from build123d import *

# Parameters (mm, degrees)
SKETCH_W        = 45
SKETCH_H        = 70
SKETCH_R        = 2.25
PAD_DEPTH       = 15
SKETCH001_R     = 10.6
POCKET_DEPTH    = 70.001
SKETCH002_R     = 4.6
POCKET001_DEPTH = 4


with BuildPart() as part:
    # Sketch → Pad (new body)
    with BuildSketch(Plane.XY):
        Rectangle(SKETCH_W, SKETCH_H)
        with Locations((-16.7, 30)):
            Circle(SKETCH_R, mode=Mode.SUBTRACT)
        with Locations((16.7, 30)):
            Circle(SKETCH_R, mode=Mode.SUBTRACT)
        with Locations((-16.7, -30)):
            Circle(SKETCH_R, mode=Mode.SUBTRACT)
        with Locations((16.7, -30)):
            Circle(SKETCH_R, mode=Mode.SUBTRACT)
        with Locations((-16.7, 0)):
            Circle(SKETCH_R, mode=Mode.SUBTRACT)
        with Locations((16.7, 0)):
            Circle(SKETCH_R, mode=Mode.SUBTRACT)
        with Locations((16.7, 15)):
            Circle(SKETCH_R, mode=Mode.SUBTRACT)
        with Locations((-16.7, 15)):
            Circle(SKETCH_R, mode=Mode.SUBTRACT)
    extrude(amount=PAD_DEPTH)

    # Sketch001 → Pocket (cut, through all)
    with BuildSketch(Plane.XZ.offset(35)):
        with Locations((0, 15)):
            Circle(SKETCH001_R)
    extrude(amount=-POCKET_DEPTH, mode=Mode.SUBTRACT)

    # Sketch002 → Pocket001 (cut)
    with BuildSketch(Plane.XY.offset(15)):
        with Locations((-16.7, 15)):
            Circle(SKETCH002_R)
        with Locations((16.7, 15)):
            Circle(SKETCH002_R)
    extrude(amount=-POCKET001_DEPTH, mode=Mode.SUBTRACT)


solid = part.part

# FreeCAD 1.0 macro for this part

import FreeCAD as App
import Part
import Sketcher
from FreeCAD import Vector
Q = App.Units.Quantity


def add_polygon(sketch, points):
    """Adds a closed chain of lines whose ends are joined by coincident constraints."""
    first, n = sketch.GeometryCount, len(points)
    for a, b in zip(points, points[1:] + points[:1]):
        sketch.addGeometry(Part.LineSegment(App.Vector(*a, 0), App.Vector(*b, 0)), False)
    for i in range(n):
        sketch.addConstraint(Sketcher.Constraint("Coincident", first + i, 2, first + (i + 1) % n, 1))

doc = App.newDocument("Part")
body = doc.addObject("PartDesign::Body", "Body")

# Sketch on XY plane
sketch1 = doc.addObject("Sketcher::SketchObject", "Sketch")
body.addObject(sketch1)
sketch1.AttachmentSupport = (doc.XY_Plane, [""])
sketch1.MapMode = "FlatFace"
add_polygon(sketch1, [(-22.5, 35), (-22.5, -35), (22.5, -35), (22.5, 35)])  # lines 0-3
sketch1.addGeometry(Part.Circle(Vector(-16.7, -30, 0), Vector(0, 0, 1), 2.25), False)  # 4
sketch1.addGeometry(Part.Circle(Vector(16.7, -30, 0), Vector(0, 0, 1), 2.25), False)  # 5
sketch1.addGeometry(Part.Circle(Vector(-16.7, 0, 0), Vector(0, 0, 1), 2.25), False)  # 6
sketch1.addGeometry(Part.Circle(Vector(-16.7, 15, 0), Vector(0, 0, 1), 2.25), False)  # 7
sketch1.addGeometry(Part.Circle(Vector(-16.7, 30, 0), Vector(0, 0, 1), 2.25), False)  # 8
sketch1.addGeometry(Part.Circle(Vector(16.7, 0, 0), Vector(0, 0, 1), 2.25), False)  # 9
sketch1.addGeometry(Part.Circle(Vector(16.7, 15, 0), Vector(0, 0, 1), 2.25), False)  # 10
sketch1.addGeometry(Part.Circle(Vector(16.7, 30, 0), Vector(0, 0, 1), 2.25), False)  # 11
sketch1.addConstraint([
    Sketcher.Constraint("Vertical", 0),
    Sketcher.Constraint("Horizontal", 1),
    Sketcher.Constraint("Vertical", 2),
    Sketcher.Constraint("Horizontal", 3),
    Sketcher.Constraint("Equal", 4, 5),
    Sketcher.Constraint("Equal", 5, 6),
    Sketcher.Constraint("Equal", 6, 7),
    Sketcher.Constraint("Equal", 7, 8),
    Sketcher.Constraint("Equal", 8, 9),
    Sketcher.Constraint("Equal", 9, 10),
    Sketcher.Constraint("Equal", 10, 11),
    Sketcher.Constraint("Symmetric", 5, 3, 8, 3, -1, 1),
    Sketcher.Constraint("Symmetric", 6, 3, 9, 3, -1, 1),
    Sketcher.Constraint("Symmetric", 4, 3, 11, 3, -1, 1),
    Sketcher.Constraint("Symmetric", 0, 2, 2, 2, -1, 1),
    Sketcher.Constraint("Symmetric", 4, 3, 5, 3, -2),
    Sketcher.Constraint("Symmetric", 7, 3, 10, 3, -2),
    Sketcher.Constraint("PointOnObject", 6, 3, -1),
    Sketcher.Constraint("Vertical", 4, 3, 6, 3),
    Sketcher.Constraint("Vertical", 6, 3, 7, 3),
    Sketcher.Constraint("Diameter", 4, Q("4.5 mm")),
    Sketcher.Constraint("DistanceX", 1, 1, 1, 2, Q("45 mm")),
    Sketcher.Constraint("DistanceY", 0, 2, 0, 1, Q("70 mm")),
    Sketcher.Constraint("DistanceY", 4, 3, -1, 1, Q("30 mm")),
    Sketcher.Constraint("DistanceY", -1, 1, 7, 3, Q("15 mm")),
    Sketcher.Constraint("DistanceX", 4, 3, -1, 1, Q("16.7 mm")),
])
pad1 = doc.addObject("PartDesign::Pad", "Pad")
body.addObject(pad1)
pad1.Profile = sketch1
pad1.Length = 15

# Sketch on XZ plane
sketch2 = doc.addObject("Sketcher::SketchObject", "Sketch001")
body.addObject(sketch2)
sketch2.AttachmentSupport = (doc.XZ_Plane, [""])
sketch2.MapMode = "FlatFace"
sketch2.AttachmentOffset = App.Placement(Vector(0, 0, 35), App.Rotation())
sketch2.addGeometry(Part.Circle(Vector(0, 15, 0), Vector(0, 0, 1), 10.6), False)
sketch2.addConstraint([
    Sketcher.Constraint("PointOnObject", 0, 3, -2),
    Sketcher.Constraint("Diameter", 0, Q("21.2 mm")),
    Sketcher.Constraint("DistanceY", -1, 1, 0, 3, Q("15 mm")),
])
pocket1 = doc.addObject("PartDesign::Pocket", "Pocket")
body.addObject(pocket1)
pocket1.Profile = sketch2
pocket1.Type = "ThroughAll"

# Sketch on XY plane
sketch3 = doc.addObject("Sketcher::SketchObject", "Sketch002")
body.addObject(sketch3)
sketch3.AttachmentSupport = (doc.XY_Plane, [""])
sketch3.MapMode = "FlatFace"
sketch3.AttachmentOffset = App.Placement(Vector(0, 0, 15), App.Rotation())
sketch3.addGeometry([
    Part.Circle(Vector(-16.7, 15, 0), Vector(0, 0, 1), 4.6),
    Part.Circle(Vector(16.7, 15, 0), Vector(0, 0, 1), 4.6),
], False)
sketch3.addConstraint([
    Sketcher.Constraint("Equal", 0, 1),
    Sketcher.Constraint("Symmetric", 0, 3, 1, 3, -2),
    Sketcher.Constraint("Diameter", 0, Q("9.2 mm")),
    Sketcher.Constraint("DistanceY", -1, 1, 0, 3, Q("15 mm")),
    Sketcher.Constraint("DistanceX", 0, 3, -1, 1, Q("16.7 mm")),
])
pocket2 = doc.addObject("PartDesign::Pocket", "Pocket001")
body.addObject(pocket2)
pocket2.Profile = sketch3
pocket2.Length = 4

doc.recompute()
